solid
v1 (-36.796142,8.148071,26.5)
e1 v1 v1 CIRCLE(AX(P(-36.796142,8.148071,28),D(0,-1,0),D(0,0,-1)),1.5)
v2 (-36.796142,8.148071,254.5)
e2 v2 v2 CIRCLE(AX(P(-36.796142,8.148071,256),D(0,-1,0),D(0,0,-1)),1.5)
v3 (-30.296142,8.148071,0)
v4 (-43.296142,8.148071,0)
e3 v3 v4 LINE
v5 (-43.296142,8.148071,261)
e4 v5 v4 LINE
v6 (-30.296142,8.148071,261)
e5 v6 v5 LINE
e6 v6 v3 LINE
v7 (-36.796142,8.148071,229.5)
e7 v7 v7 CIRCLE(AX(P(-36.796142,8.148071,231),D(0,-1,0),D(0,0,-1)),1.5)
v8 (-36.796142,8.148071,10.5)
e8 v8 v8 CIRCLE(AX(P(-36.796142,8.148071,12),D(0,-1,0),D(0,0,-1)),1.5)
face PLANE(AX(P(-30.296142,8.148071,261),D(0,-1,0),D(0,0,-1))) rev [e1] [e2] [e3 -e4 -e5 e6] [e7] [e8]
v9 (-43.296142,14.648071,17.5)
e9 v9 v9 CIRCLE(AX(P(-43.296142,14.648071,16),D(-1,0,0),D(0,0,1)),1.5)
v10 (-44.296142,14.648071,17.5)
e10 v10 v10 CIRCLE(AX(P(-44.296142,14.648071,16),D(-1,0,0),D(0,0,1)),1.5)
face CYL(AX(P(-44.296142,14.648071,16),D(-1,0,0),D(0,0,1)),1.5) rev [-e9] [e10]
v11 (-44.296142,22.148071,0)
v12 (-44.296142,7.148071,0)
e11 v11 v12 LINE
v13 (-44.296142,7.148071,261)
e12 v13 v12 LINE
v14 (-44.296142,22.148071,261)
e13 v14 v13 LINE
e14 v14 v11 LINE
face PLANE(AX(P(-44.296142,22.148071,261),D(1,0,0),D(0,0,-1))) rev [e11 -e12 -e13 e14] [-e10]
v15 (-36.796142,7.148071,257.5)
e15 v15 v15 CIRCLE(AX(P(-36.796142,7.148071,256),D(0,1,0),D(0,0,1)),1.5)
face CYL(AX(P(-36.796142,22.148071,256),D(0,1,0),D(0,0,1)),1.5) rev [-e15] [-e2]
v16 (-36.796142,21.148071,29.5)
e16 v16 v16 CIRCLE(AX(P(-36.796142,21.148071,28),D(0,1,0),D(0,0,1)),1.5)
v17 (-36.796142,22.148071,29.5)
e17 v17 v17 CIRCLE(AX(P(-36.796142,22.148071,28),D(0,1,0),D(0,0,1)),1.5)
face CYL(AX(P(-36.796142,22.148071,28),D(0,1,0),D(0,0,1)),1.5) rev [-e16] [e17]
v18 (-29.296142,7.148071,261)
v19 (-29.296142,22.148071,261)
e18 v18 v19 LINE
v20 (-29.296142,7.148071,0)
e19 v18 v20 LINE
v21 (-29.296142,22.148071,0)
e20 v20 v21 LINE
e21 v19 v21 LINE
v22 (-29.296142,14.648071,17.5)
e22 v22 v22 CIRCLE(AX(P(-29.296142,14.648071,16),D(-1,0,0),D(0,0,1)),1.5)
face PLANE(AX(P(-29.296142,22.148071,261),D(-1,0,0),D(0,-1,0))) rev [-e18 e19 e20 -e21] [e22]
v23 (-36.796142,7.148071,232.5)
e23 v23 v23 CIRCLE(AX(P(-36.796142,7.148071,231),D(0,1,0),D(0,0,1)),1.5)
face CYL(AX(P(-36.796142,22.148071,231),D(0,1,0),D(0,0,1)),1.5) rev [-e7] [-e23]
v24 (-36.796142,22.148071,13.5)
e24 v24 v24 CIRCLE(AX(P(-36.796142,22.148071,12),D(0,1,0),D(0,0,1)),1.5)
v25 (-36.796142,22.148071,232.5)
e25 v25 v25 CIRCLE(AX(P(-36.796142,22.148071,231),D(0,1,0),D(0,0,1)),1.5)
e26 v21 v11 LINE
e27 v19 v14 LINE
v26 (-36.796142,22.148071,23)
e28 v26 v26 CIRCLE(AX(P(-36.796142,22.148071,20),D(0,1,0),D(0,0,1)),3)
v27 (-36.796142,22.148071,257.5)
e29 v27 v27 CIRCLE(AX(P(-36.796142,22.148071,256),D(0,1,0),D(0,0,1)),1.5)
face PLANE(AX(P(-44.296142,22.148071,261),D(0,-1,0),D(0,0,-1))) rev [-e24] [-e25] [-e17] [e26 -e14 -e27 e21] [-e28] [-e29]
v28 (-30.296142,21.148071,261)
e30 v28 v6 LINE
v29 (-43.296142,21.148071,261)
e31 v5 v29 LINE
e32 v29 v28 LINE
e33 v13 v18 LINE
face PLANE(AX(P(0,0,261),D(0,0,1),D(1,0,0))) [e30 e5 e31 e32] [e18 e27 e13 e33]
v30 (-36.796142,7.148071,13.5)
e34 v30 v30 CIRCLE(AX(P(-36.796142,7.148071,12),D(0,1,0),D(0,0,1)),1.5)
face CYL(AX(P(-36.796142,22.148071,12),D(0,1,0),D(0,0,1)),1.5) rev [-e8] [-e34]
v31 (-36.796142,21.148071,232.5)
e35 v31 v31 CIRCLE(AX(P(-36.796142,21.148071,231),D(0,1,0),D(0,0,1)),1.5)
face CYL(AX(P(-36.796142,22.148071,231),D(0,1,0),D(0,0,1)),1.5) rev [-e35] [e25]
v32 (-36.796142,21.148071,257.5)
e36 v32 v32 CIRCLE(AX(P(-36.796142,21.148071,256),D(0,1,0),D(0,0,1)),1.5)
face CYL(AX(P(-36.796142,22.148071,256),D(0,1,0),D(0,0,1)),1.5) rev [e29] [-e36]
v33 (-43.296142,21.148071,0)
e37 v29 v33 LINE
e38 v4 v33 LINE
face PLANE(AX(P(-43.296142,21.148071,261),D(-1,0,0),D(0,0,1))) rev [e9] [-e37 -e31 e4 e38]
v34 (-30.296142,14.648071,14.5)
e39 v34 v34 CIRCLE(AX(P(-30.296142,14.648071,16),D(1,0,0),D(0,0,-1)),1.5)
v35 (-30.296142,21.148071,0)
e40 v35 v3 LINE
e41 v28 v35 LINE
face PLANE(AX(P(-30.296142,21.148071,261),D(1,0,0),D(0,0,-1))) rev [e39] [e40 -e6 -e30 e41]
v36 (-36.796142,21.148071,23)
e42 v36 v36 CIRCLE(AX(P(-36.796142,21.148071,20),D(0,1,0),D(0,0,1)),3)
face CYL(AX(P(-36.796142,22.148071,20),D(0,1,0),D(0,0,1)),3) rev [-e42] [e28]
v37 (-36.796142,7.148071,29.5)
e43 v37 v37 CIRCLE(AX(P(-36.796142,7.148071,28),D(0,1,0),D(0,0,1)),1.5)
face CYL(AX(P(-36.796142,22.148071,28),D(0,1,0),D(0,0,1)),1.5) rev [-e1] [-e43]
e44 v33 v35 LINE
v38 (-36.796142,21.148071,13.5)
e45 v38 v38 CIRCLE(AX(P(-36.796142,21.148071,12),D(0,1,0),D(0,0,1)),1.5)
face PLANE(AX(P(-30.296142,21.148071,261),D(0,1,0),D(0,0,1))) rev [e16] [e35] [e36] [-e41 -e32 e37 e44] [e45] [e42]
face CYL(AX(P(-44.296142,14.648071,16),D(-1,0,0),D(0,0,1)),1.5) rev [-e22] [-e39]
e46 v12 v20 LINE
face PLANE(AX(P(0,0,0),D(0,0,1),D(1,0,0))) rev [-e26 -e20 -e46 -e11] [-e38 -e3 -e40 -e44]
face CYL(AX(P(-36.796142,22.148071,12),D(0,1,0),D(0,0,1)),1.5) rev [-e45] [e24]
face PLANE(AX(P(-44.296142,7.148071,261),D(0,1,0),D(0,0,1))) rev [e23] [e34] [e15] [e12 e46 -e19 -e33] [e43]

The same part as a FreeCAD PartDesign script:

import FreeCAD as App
import Part
import Sketcher
from FreeCAD import Vector


def add_polygon(sketch, points):
    """Adds a closed chain of lines whose ends are joined by coincident constraints."""
    first, n = sketch.GeometryCount, len(points)
    for a, b in zip(points, points[1:] + points[:1]):
        sketch.addGeometry(Part.LineSegment(App.Vector(*a, 0), App.Vector(*b, 0)), False)
    for i in range(n):
        sketch.addConstraint(Sketcher.Constraint("Coincident", first + i, 2, first + (i + 1) % n, 1))

doc = App.newDocument("Part")
body = doc.addObject("PartDesign::Body", "Body")

# Sketch on XY plane
sketch1 = body.newObject("Sketcher::SketchObject", "Sketch")
sketch1.AttachmentSupport = (doc.getObject("XY_Plane"), [""])
sketch1.MapMode = "FlatFace"
add_polygon(sketch1, [(-44, 22), (-44, 7), (-29, 7), (-29, 22)])  # lines 0-3
sketch1.addConstraint(Sketcher.Constraint("Vertical", 0))
sketch1.addConstraint(Sketcher.Constraint("Horizontal", 1))
sketch1.addConstraint(Sketcher.Constraint("Vertical", 2))
sketch1.addConstraint(Sketcher.Constraint("Horizontal", 3))
sketch1.addConstraint(Sketcher.Constraint("Equal", 3, 0))
sketch1.addConstraint(Sketcher.Constraint("DistanceX", 1, 1, 1, 2, 15.0))
sketch1.addConstraint(Sketcher.Constraint("DistanceX", 0, 2, -1, 1, 44.296142))
sketch1.addConstraint(Sketcher.Constraint("DistanceY", -1, 1, 0, 2, 7.148071))
pad1 = body.newObject("PartDesign::Pad", "Pad")
pad1.Profile = sketch1
pad1.Length = 261

# Sketch on XY plane
sketch2 = body.newObject("Sketcher::SketchObject", "Sketch001")
sketch2.AttachmentSupport = (doc.getObject("XY_Plane"), [""])
sketch2.MapMode = "FlatFace"
add_polygon(sketch2, [(-30, 21), (-30, 8), (-43, 8), (-43, 21)])  # lines 0-3
sketch2.addConstraint(Sketcher.Constraint("Vertical", 0))
sketch2.addConstraint(Sketcher.Constraint("Horizontal", 1))
sketch2.addConstraint(Sketcher.Constraint("Vertical", 2))
sketch2.addConstraint(Sketcher.Constraint("Horizontal", 3))
sketch2.addConstraint(Sketcher.Constraint("Equal", 3, 0))
sketch2.addConstraint(Sketcher.Constraint("DistanceX", 1, 2, 1, 1, 13.0))
sketch2.addConstraint(Sketcher.Constraint("DistanceX", 0, 2, -1, 1, 30.296142))
sketch2.addConstraint(Sketcher.Constraint("DistanceY", -1, 1, 0, 2, 8.148071))
pocket1 = body.newObject("PartDesign::Pocket", "Pocket")
pocket1.Profile = sketch2
pocket1.Length = 261
pocket1.Reversed = True

# Sketch on XZ plane
sketch3 = body.newObject("Sketcher::SketchObject", "Sketch002")
sketch3.AttachmentSupport = (doc.getObject("XZ_Plane"), [""])
sketch3.MapMode = "FlatFace"
sketch3.AttachmentOffset = App.Placement(Vector(0, 0, -22.148071), App.Rotation())
sketch3.addGeometry(Part.Circle(Vector(-36.8, 256, 0), Vector(0, 0, 1), 1.5), False)
sketch3.addGeometry(Part.Circle(Vector(-36.8, 231, 0), Vector(0, 0, 1), 1.5), False)
sketch3.addConstraint(Sketcher.Constraint("Equal", 0, 1))
sketch3.addConstraint(Sketcher.Constraint("Vertical", 0, 3, 1, 3))
sketch3.addConstraint(Sketcher.Constraint("Diameter", 0, 3.0))
sketch3.addConstraint(Sketcher.Constraint("DistanceY", -1, 1, 0, 3, 256.0))
sketch3.addConstraint(Sketcher.Constraint("DistanceY", -1, 1, 1, 3, 231.0))
sketch3.addConstraint(Sketcher.Constraint("DistanceX", 0, 3, -1, 1, 36.796142))
doc.recompute()
hole = body.newObject("PartDesign::Hole", "Hole")
hole.Profile = sketch3
hole.ThreadType = "None"
hole.Diameter = 3
hole.DepthType = "ThroughAll"
hole.Reversed = True

# Sketch on XZ plane
sketch4 = body.newObject("Sketcher::SketchObject", "Sketch003")
sketch4.AttachmentSupport = (doc.getObject("XZ_Plane"), [""])
sketch4.MapMode = "FlatFace"
sketch4.AttachmentOffset = App.Placement(Vector(0, 0, -22.148071), App.Rotation())
sketch4.addGeometry(Part.Circle(Vector(-36.8, 12, 0), Vector(0, 0, 1), 1.5), False)
sketch4.addGeometry(Part.Circle(Vector(-36.8, 28, 0), Vector(0, 0, 1), 1.5), False)
sketch4.addConstraint(Sketcher.Constraint("Equal", 0, 1))
sketch4.addConstraint(Sketcher.Constraint("Vertical", 0, 3, 1, 3))
sketch4.addConstraint(Sketcher.Constraint("Diameter", 0, 3.0))
sketch4.addConstraint(Sketcher.Constraint("DistanceY", -1, 1, 0, 3, 12.0))
sketch4.addConstraint(Sketcher.Constraint("DistanceY", -1, 1, 1, 3, 28.0))
sketch4.addConstraint(Sketcher.Constraint("DistanceX", 0, 3, -1, 1, 36.796142))
doc.recompute()
hole2 = body.newObject("PartDesign::Hole", "Hole001")
hole2.Profile = sketch4
hole2.ThreadType = "None"
hole2.Diameter = 3
hole2.DepthType = "ThroughAll"
hole2.Reversed = True

# Sketch on XZ plane
sketch5 = body.newObject("Sketcher::SketchObject", "Sketch004")
sketch5.AttachmentSupport = (doc.getObject("XZ_Plane"), [""])
sketch5.MapMode = "FlatFace"
sketch5.AttachmentOffset = App.Placement(Vector(0, 0, -22.148071), App.Rotation())
sketch5.addGeometry(Part.Circle(Vector(-36.8, 20, 0), Vector(0, 0, 1), 3), False)
sketch5.addConstraint(Sketcher.Constraint("Diameter", 0, 6.0))
sketch5.addConstraint(Sketcher.Constraint("DistanceY", -1, 1, 0, 3, 20.0))
sketch5.addConstraint(Sketcher.Constraint("DistanceX", 0, 3, -1, 1, 36.796142))
doc.recompute()
hole3 = body.newObject("PartDesign::Hole", "Hole002")
hole3.Profile = sketch5
hole3.ThreadType = "None"
hole3.Diameter = 6
hole3.DepthType = "Dimension"
hole3.Depth = 10
hole3.DrillPoint = "Angled"
hole3.DrillPointAngle = 118
hole3.Reversed = True

# Sketch on YZ plane
sketch6 = body.newObject("Sketcher::SketchObject", "Sketch005")
sketch6.AttachmentSupport = (doc.getObject("YZ_Plane"), [""])
sketch6.MapMode = "FlatFace"
sketch6.AttachmentOffset = App.Placement(Vector(0, 0, -44.296142), App.Rotation())
sketch6.addGeometry(Part.Circle(Vector(14.6, 16, 0), Vector(0, 0, 1), 1.5), False)
sketch6.addConstraint(Sketcher.Constraint("Diameter", 0, 3.0))
sketch6.addConstraint(Sketcher.Constraint("DistanceY", -1, 1, 0, 3, 16.0))
sketch6.addConstraint(Sketcher.Constraint("DistanceX", -1, 1, 0, 3, 14.648071))
doc.recompute()
hole4 = body.newObject("PartDesign::Hole", "Hole003")
hole4.Profile = sketch6
hole4.ThreadType = "None"
hole4.Diameter = 3
hole4.DepthType = "ThroughAll"
hole4.Reversed = True

doc.recompute()
